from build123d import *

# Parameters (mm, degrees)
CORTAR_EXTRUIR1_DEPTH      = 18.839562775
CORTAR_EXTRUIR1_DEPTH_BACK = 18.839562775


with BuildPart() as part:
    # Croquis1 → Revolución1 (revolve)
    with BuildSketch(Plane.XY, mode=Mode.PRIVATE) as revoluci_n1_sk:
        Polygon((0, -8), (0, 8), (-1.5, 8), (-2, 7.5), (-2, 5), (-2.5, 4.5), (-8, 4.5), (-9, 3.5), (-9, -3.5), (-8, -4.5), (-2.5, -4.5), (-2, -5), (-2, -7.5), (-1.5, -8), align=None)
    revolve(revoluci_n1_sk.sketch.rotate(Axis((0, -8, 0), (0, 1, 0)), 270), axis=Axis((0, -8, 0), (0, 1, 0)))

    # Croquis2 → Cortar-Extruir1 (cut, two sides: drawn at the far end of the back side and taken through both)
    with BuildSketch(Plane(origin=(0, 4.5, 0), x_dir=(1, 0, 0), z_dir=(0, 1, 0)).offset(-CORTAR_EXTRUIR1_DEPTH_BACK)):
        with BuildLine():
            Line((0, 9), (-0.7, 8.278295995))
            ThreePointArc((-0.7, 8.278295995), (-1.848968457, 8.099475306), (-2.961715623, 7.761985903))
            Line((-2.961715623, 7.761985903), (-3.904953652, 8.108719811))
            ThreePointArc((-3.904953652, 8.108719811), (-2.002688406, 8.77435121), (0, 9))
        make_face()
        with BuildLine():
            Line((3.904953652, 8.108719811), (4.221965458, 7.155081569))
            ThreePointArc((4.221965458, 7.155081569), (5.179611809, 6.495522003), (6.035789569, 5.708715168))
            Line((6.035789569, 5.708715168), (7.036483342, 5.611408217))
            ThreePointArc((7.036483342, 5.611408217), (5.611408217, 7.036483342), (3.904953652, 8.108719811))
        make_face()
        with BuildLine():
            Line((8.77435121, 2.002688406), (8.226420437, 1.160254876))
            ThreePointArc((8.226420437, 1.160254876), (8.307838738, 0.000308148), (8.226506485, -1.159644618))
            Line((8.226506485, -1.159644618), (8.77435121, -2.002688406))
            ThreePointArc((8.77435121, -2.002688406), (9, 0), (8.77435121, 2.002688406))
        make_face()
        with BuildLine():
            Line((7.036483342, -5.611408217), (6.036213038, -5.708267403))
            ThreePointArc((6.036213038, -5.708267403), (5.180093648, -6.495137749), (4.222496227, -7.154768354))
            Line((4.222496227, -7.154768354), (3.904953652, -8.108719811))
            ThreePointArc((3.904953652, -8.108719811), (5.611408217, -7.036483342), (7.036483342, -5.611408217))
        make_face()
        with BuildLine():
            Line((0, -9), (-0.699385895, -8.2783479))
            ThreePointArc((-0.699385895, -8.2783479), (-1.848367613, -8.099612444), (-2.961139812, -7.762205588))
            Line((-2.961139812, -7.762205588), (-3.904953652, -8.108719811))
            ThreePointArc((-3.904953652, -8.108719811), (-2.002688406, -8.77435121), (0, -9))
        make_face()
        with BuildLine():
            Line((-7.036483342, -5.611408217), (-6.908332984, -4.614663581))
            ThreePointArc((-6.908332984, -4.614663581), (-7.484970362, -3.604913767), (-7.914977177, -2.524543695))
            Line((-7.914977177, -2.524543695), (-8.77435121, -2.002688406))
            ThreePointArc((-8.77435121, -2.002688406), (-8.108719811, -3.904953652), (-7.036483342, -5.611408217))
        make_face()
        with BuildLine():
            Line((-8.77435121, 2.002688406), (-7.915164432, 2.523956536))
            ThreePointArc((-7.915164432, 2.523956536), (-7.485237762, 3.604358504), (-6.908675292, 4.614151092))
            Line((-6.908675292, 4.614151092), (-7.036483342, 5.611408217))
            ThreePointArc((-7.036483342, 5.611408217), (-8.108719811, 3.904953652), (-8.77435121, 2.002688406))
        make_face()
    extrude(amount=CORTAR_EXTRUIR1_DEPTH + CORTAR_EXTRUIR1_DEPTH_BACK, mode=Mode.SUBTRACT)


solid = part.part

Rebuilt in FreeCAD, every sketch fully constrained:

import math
import FreeCAD as App
import Part
import Sketcher
from FreeCAD import Vector
Q = App.Units.Quantity


def add_polygon(sketch, points):
    """Adds a closed chain of lines whose ends are joined by coincident constraints."""
    first, n = sketch.GeometryCount, len(points)
    for a, b in zip(points, points[1:] + points[:1]):
        sketch.addGeometry(Part.LineSegment(App.Vector(*a, 0), App.Vector(*b, 0)), False)
    for i in range(n):
        sketch.addConstraint(Sketcher.Constraint("Coincident", first + i, 2, first + (i + 1) % n, 1))

doc = App.newDocument("Part")
body = doc.addObject("PartDesign::Body", "Body")

sketch1 = body.newObject("Sketcher::SketchObject", "Sketch")
sketch1.AttachmentSupport = (doc.getObject("XY_Plane"), [""])
sketch1.MapMode = "FlatFace"
add_polygon(sketch1, [(0, -8), (0, 8), (-1.5, 8), (-2, 7.5), (-2, 5), (-2.5, 4.5), (-8, 4.5), (-9, 3.5), (-9, -3.5), (-8, -4.5), (-2.5, -4.5), (-2, -5), (-2, -7.5), (-1.5, -8)])
sketch1.addConstraint(Sketcher.Constraint("Vertical", 0))
sketch1.addConstraint(Sketcher.Constraint("Horizontal", 1))
sketch1.addConstraint(Sketcher.Constraint("Vertical", 3))
sketch1.addConstraint(Sketcher.Constraint("Horizontal", 5))
sketch1.addConstraint(Sketcher.Constraint("Vertical", 7))
sketch1.addConstraint(Sketcher.Constraint("Horizontal", 9))
sketch1.addConstraint(Sketcher.Constraint("Vertical", 11))
sketch1.addConstraint(Sketcher.Constraint("Horizontal", 13))
sketch1.addConstraint(Sketcher.Constraint("Symmetric", 0, 2, 13, 2, -1, 1))
sketch1.addConstraint(Sketcher.Constraint("Symmetric", 5, 2, 8, 2, -1))
sketch1.addConstraint(Sketcher.Constraint("Symmetric", 3, 2, 10, 2, -1))
sketch1.addConstraint(Sketcher.Constraint("Parallel", 2, 4))
sketch1.addConstraint(Sketcher.Constraint("Parallel", 4, 6))
sketch1.addConstraint(Sketcher.Constraint("Perpendicular", 6, 8))
sketch1.addConstraint(Sketcher.Constraint("Parallel", 8, 10))
sketch1.addConstraint(Sketcher.Constraint("Parallel", 10, 12))
sketch1.addConstraint(Sketcher.Constraint("Vertical", 4, 2, 9, 2))
sketch1.addConstraint(Sketcher.Constraint("Vertical", 1, 2, 12, 2))
sketch1.addConstraint(Sketcher.Constraint("Equal", 2, 4))
sketch1.addConstraint(Sketcher.Constraint("DistanceY", 0, 1, 0, 2, Q("16 mm")))
sketch1.addConstraint(Sketcher.Constraint("DistanceY", 7, 2, 7, 1, Q("7 mm")))
sketch1.addConstraint(Sketcher.Constraint("DistanceX", 1, 2, 1, 1, Q("1.5 mm")))
sketch1.addConstraint(Sketcher.Constraint("DistanceX", 5, 2, 5, 1, Q("5.5 mm")))
sketch1.addConstraint(Sketcher.Constraint("DistanceY", 3, 2, 3, 1, Q("2.5 mm")))
sketch1.addConstraint(Sketcher.Constraint("DistanceX", 2, 2, -1, 1, Q("2 mm")))
revolution = body.newObject("PartDesign::Revolution", "Revolution")
revolution.Profile = sketch1
revolution.ReferenceAxis = (sketch1, ["V_Axis"])
revolution.Angle = 360

sketch2 = body.newObject("Sketcher::SketchObject", "Sketch001")
sketch2.AttachmentSupport = (doc.getObject("XZ_Plane"), [""])
sketch2.MapMode = "FlatFace"
sketch2.AttachmentOffset = App.Placement(Vector(0, 0, -4.5), App.Rotation())
sketch2.addGeometry(Part.LineSegment(Vector(-0.7, -8.3, 0), Vector(0, -9, 0)), False)
sketch2.addGeometry(Part.ArcOfCircle(Part.Circle(Vector(0, 0, 0), Vector(0, 0, 1), 9), math.radians(-116), math.radians(-90)), False)
sketch2.addGeometry(Part.LineSegment(Vector(-3.9, -8.1, 0), Vector(-3, -7.8, 0)), False)
sketch2.addGeometry(Part.ArcOfCircle(Part.Circle(Vector(0, 0, 0), Vector(0, 0, 1), 8.3), math.radians(-110.89), math.radians(-94.83)), False)
sketch2.addGeometry(Part.LineSegment(Vector(3.9, -8.1, 0), Vector(4.2, -7.2, 0)), False)
sketch2.addGeometry(Part.ArcOfCircle(Part.Circle(Vector(0, 0, 0), Vector(0, 0, 1), 8.3), math.radians(-59.46), math.radians(-43.4)), False)
sketch2.addGeometry(Part.LineSegment(Vector(6, -5.7, 0), Vector(7, -5.6, 0)), False)
sketch2.addGeometry(Part.ArcOfCircle(Part.Circle(Vector(0, 0, 0), Vector(0, 0, 1), 9), math.radians(-64), math.radians(-39)), False)
sketch2.addGeometry(Part.LineSegment(Vector(8.8, -2, 0), Vector(8.2, -1.2, 0)), False)
sketch2.addGeometry(Part.ArcOfCircle(Part.Circle(Vector(0, 0, 0), Vector(0, 0, 1), 8.3), math.radians(-8.03), math.radians(8.02)), False)
sketch2.addGeometry(Part.LineSegment(Vector(8.2, 1.2, 0), Vector(8.8, 2, 0)), False)
sketch2.addGeometry(Part.ArcOfCircle(Part.Circle(Vector(0, 0, 0), Vector(0, 0, 1), 9), math.radians(-13), math.radians(13)), False)
sketch2.addGeometry(Part.LineSegment(Vector(7, 5.6, 0), Vector(6, 5.7, 0)), False)
sketch2.addGeometry(Part.ArcOfCircle(Part.Circle(Vector(0, 0, 0), Vector(0, 0, 1), 8.3), math.radians(43.4), math.radians(59.45)), False)
sketch2.addGeometry(Part.LineSegment(Vector(4.2, 7.2, 0), Vector(3.9, 8.1, 0)), False)
sketch2.addGeometry(Part.ArcOfCircle(Part.Circle(Vector(0, 0, 0), Vector(0, 0, 1), 9), math.radians(39), math.radians(64)), False)
sketch2.addGeometry(Part.LineSegment(Vector(0, 9, 0), Vector(-0.7, 8.3, 0)), False)
sketch2.addGeometry(Part.ArcOfCircle(Part.Circle(Vector(0, 0, 0), Vector(0, 0, 1), 8.3), math.radians(94.83), math.radians(110.88)), False)
sketch2.addGeometry(Part.LineSegment(Vector(-3, 7.8, 0), Vector(-3.9, 8.1, 0)), False)
sketch2.addGeometry(Part.ArcOfCircle(Part.Circle(Vector(0, 0, 0), Vector(0, 0, 1), 9), math.radians(90), math.radians(116)), False)
sketch2.addGeometry(Part.LineSegment(Vector(-7, 5.6, 0), Vector(-6.9, 4.6, 0)), False)
sketch2.addGeometry(Part.ArcOfCircle(Part.Circle(Vector(0, 0, 0), Vector(0, 0, 1), 8.3), math.radians(146.26), math.radians(162.31)), False)
sketch2.addGeometry(Part.LineSegment(Vector(-7.9, 2.5, 0), Vector(-8.8, 2, 0)), False)
sketch2.addGeometry(Part.ArcOfCircle(Part.Circle(Vector(0, 0, 0), Vector(0, 0, 1), 9), math.radians(141), math.radians(167)), False)
sketch2.addGeometry(Part.LineSegment(Vector(-8.8, -2, 0), Vector(-7.9, -2.5, 0)), False)
sketch2.addGeometry(Part.ArcOfCircle(Part.Circle(Vector(0, 0, 0), Vector(0, 0, 1), 8.3), math.radians(-162.31), math.radians(-146.26)), False)
sketch2.addGeometry(Part.LineSegment(Vector(-6.9, -4.6, 0), Vector(-7, -5.6, 0)), False)
sketch2.addGeometry(Part.ArcOfCircle(Part.Circle(Vector(0, 0, 0), Vector(0, 0, 1), 9), math.radians(-167), math.radians(-141)), False)
sketch2.addConstraint(Sketcher.Constraint("Coincident", 0, 2, 1, 2))
sketch2.addConstraint(Sketcher.Constraint("Coincident", 1, 1, 2, 1))
sketch2.addConstraint(Sketcher.Constraint("Coincident", 2, 2, 3, 1))
sketch2.addConstraint(Sketcher.Constraint("Coincident", 3, 2, 0, 1))
sketch2.addConstraint(Sketcher.Constraint("Coincident", 4, 2, 5, 1))
sketch2.addConstraint(Sketcher.Constraint("Coincident", 5, 2, 6, 1))
sketch2.addConstraint(Sketcher.Constraint("Coincident", 6, 2, 7, 2))
sketch2.addConstraint(Sketcher.Constraint("Coincident", 7, 1, 4, 1))
sketch2.addConstraint(Sketcher.Constraint("Coincident", 8, 2, 9, 1))
sketch2.addConstraint(Sketcher.Constraint("Coincident", 9, 2, 10, 1))
sketch2.addConstraint(Sketcher.Constraint("Coincident", 10, 2, 11, 2))
sketch2.addConstraint(Sketcher.Constraint("Coincident", 11, 1, 8, 1))
sketch2.addConstraint(Sketcher.Constraint("Coincident", 12, 2, 13, 1))
sketch2.addConstraint(Sketcher.Constraint("Coincident", 13, 2, 14, 1))
sketch2.addConstraint(Sketcher.Constraint("Coincident", 14, 2, 15, 2))
sketch2.addConstraint(Sketcher.Constraint("Coincident", 15, 1, 12, 1))
sketch2.addConstraint(Sketcher.Constraint("Coincident", 16, 2, 17, 1))
sketch2.addConstraint(Sketcher.Constraint("Coincident", 17, 2, 18, 1))
sketch2.addConstraint(Sketcher.Constraint("Coincident", 18, 2, 19, 2))
sketch2.addConstraint(Sketcher.Constraint("Coincident", 19, 1, 16, 1))
sketch2.addConstraint(Sketcher.Constraint("Coincident", 20, 2, 21, 1))
sketch2.addConstraint(Sketcher.Constraint("Coincident", 21, 2, 22, 1))
sketch2.addConstraint(Sketcher.Constraint("Coincident", 22, 2, 23, 2))
sketch2.addConstraint(Sketcher.Constraint("Coincident", 23, 1, 20, 1))
sketch2.addConstraint(Sketcher.Constraint("Coincident", 24, 2, 25, 1))
sketch2.addConstraint(Sketcher.Constraint("Coincident", 25, 2, 26, 1))
sketch2.addConstraint(Sketcher.Constraint("Coincident", 26, 2, 27, 2))
sketch2.addConstraint(Sketcher.Constraint("Coincident", 27, 1, 24, 1))
sketch2.addConstraint(Sketcher.Constraint("Coincident", 1, 3, -1, 1))
sketch2.addConstraint(Sketcher.Constraint("Coincident", 3, 3, -1, 1))
sketch2.addConstraint(Sketcher.Constraint("Coincident", 5, 3, -1, 1))
sketch2.addConstraint(Sketcher.Constraint("Coincident", 7, 3, -1, 1))
sketch2.addConstraint(Sketcher.Constraint("Coincident", 9, 3, -1, 1))
sketch2.addConstraint(Sketcher.Constraint("Coincident", 11, 3, -1, 1))
sketch2.addConstraint(Sketcher.Constraint("Coincident", 13, 3, -1, 1))
sketch2.addConstraint(Sketcher.Constraint("Coincident", 15, 3, -1, 1))
sketch2.addConstraint(Sketcher.Constraint("Coincident", 17, 3, -1, 1))
sketch2.addConstraint(Sketcher.Constraint("Coincident", 19, 3, -1, 1))
sketch2.addConstraint(Sketcher.Constraint("Coincident", 21, 3, -1, 1))
sketch2.addConstraint(Sketcher.Constraint("Coincident", 23, 3, -1, 1))
sketch2.addConstraint(Sketcher.Constraint("Coincident", 25, 3, -1, 1))
sketch2.addConstraint(Sketcher.Constraint("Coincident", 27, 3, -1, 1))
sketch2.addConstraint(Sketcher.Constraint("Equal", 3, 5))
sketch2.addConstraint(Sketcher.Constraint("Equal", 1, 7))
sketch2.addConstraint(Sketcher.Constraint("Equal", 5, 9))
sketch2.addConstraint(Sketcher.Constraint("Equal", 7, 11))
sketch2.addConstraint(Sketcher.Constraint("Equal", 9, 13))
sketch2.addConstraint(Sketcher.Constraint("Equal", 11, 15))
sketch2.addConstraint(Sketcher.Constraint("Equal", 13, 17))
sketch2.addConstraint(Sketcher.Constraint("Equal", 15, 19))
sketch2.addConstraint(Sketcher.Constraint("Equal", 17, 21))
sketch2.addConstraint(Sketcher.Constraint("Equal", 19, 23))
sketch2.addConstraint(Sketcher.Constraint("Equal", 21, 25))
sketch2.addConstraint(Sketcher.Constraint("Equal", 23, 27))
sketch2.addConstraint(Sketcher.Constraint("PointOnObject", 0, 2, -2))
sketch2.addConstraint(Sketcher.Constraint("PointOnObject", 19, 1, -2))
sketch2.addConstraint(Sketcher.Constraint("Horizontal", 1, 1, 7, 1))
sketch2.addConstraint(Sketcher.Constraint("Horizontal", 14, 2, 18, 2))
sketch2.addConstraint(Sketcher.Constraint("Horizontal", 10, 2, 22, 2))
sketch2.addConstraint(Sketcher.Constraint("Horizontal", 15, 1, 23, 1))
sketch2.addConstraint(Sketcher.Constraint("Horizontal", 6, 2, 26, 2))
sketch2.addConstraint(Sketcher.Constraint("Horizontal", 11, 1, 27, 1))
sketch2.addConstraint(Sketcher.Constraint("Vertical", 10, 2, 11, 1))
sketch2.addConstraint(Sketcher.Constraint("Vertical", 7, 1, 14, 2))
sketch2.addConstraint(Sketcher.Constraint("Vertical", 6, 2, 15, 1))
sketch2.addConstraint(Sketcher.Constraint("Equal", 2, 4))
sketch2.addConstraint(Sketcher.Constraint("Equal", 0, 6))
sketch2.addConstraint(Sketcher.Constraint("Equal", 4, 8))
sketch2.addConstraint(Sketcher.Constraint("Equal", 6, 10))
sketch2.addConstraint(Sketcher.Constraint("Equal", 8, 12))
sketch2.addConstraint(Sketcher.Constraint("Equal", 10, 14))
sketch2.addConstraint(Sketcher.Constraint("Equal", 12, 16))
sketch2.addConstraint(Sketcher.Constraint("Equal", 14, 18))
sketch2.addConstraint(Sketcher.Constraint("Equal", 16, 20))
sketch2.addConstraint(Sketcher.Constraint("Equal", 18, 22))
sketch2.addConstraint(Sketcher.Constraint("Equal", 20, 24))
sketch2.addConstraint(Sketcher.Constraint("Equal", 22, 26))
sketch2.addConstraint(Sketcher.Constraint("Radius", 1, Q("9 mm")))
sketch2.addConstraint(Sketcher.Constraint("DistanceX", 3, 2, -1, 1, Q("0.7 mm")))
sketch2.addConstraint(Sketcher.Constraint("Radius", 3, Q("8.307839 mm")))
sketch2.addConstraint(Sketcher.Constraint("DistanceY", 8, 2, 9, 2, Q("2.319899 mm")))
sketch2.addConstraint(Sketcher.Constraint("DistanceY", 12, 2, 13, 2, Q("1.446501 mm")))
sketch2.addConstraint(Sketcher.Constraint("DistanceX", 16, 2, 12, 2, Q("6.735599 mm")))
sketch2.addConstraint(Sketcher.Constraint("DistanceY", 24, 2, 21, 2, Q("5.0485 mm")))
pocket1 = body.newObject("PartDesign::Pocket", "Pocket")
pocket1.Profile = sketch2
pocket1.Type = "ThroughAll"
pocket1.Midplane = True

doc.recompute()
